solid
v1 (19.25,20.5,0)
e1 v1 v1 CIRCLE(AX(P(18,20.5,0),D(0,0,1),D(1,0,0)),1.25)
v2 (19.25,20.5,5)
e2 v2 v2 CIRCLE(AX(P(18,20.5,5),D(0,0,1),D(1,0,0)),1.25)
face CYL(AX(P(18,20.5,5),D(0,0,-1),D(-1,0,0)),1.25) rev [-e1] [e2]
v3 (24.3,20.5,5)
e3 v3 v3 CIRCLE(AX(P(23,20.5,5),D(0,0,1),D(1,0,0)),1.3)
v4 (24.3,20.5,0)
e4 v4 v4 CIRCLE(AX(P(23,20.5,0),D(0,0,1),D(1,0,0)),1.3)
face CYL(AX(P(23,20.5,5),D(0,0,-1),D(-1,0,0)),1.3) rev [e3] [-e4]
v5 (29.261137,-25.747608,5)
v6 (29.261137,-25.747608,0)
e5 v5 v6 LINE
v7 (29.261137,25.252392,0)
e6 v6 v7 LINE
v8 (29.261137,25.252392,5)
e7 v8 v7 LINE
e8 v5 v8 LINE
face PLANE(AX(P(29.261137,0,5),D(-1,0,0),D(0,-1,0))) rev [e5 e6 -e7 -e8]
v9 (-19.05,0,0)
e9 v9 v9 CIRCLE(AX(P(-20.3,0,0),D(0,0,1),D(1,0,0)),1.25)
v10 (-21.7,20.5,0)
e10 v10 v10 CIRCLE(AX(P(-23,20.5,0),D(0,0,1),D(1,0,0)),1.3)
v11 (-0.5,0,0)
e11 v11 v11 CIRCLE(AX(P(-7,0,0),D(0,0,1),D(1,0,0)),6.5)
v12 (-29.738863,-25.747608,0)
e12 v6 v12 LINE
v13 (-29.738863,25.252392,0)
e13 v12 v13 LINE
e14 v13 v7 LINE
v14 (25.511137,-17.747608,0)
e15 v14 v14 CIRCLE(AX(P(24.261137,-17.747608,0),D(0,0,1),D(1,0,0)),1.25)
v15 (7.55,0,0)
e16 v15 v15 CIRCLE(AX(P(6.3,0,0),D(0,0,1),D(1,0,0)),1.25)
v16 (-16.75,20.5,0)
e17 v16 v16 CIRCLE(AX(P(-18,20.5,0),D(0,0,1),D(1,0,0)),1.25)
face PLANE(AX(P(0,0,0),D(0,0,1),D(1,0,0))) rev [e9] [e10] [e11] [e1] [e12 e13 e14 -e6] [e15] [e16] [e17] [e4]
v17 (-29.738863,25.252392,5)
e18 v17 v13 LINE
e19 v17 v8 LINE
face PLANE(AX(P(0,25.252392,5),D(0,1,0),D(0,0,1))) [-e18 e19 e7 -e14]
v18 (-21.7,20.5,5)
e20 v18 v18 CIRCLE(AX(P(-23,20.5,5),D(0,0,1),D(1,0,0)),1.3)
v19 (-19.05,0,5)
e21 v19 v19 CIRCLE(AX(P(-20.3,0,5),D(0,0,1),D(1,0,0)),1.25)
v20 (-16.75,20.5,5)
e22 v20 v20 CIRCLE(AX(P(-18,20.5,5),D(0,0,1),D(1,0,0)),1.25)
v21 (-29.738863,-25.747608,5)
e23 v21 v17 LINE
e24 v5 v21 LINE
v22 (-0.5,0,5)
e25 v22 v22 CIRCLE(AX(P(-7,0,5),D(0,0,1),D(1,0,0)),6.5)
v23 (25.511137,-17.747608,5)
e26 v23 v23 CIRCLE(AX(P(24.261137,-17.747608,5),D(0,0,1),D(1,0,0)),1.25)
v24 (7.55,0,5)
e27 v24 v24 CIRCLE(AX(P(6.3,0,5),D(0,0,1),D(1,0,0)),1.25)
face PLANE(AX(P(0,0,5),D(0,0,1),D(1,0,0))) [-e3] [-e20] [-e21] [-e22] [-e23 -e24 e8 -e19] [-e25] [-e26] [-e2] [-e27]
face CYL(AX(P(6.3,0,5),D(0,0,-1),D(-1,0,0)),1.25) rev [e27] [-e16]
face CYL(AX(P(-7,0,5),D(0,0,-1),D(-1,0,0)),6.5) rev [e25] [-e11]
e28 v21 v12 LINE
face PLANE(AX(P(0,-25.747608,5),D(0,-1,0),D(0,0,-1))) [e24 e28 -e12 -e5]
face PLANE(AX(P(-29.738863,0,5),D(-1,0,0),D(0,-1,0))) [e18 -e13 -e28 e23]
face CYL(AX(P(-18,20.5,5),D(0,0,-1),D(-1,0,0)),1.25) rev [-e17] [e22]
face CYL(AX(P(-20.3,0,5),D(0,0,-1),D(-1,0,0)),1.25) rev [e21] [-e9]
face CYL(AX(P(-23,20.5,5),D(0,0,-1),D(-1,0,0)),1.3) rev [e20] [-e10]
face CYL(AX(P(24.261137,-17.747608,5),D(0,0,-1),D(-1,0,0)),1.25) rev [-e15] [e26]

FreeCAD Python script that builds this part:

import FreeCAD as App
import Part
import Sketcher
Q = App.Units.Quantity


def add_polygon(sketch, points):
    """Adds a closed chain of lines whose ends are joined by coincident constraints."""
    first, n = sketch.GeometryCount, len(points)
    for a, b in zip(points, points[1:] + points[:1]):
        sketch.addGeometry(Part.LineSegment(App.Vector(*a, 0), App.Vector(*b, 0)), False)
    for i in range(n):
        sketch.addConstraint(Sketcher.Constraint("Coincident", first + i, 2, first + (i + 1) % n, 1))

doc = App.newDocument("Part")
params = doc.addObject("Spreadsheet::Sheet", "Params")
for row, (alias, value) in enumerate([
    ("sketch1_diameter", "13 mm"),
    ("sketch1_diameter2", "2.5 mm"),
    ("sketch1_diameter3", "2.6 mm"),
    ("sketch1_width", "59 mm"),
    ("sketch1_height", "51 mm"),
    ("pad1_length", "5 mm"),
], start=1):
    params.set(f"A{row}", alias)
    params.set(f"B{row}", "=" + value)
    params.setAlias(f"B{row}", alias)

body = doc.addObject("PartDesign::Body", "Body")

# Sketch on XY plane
sketch1 = body.newObject("Sketcher::SketchObject", "Sketch")
sketch1.AttachmentSupport = (doc.getObject("XY_Plane"), [""])
sketch1.MapMode = "FlatFace"
add_polygon(sketch1, [(-29.7, 25.3), (-29.7, -25.7), (29.3, -25.7), (29.3, 25.3)])  # lines 0-3
sketch1.addGeometry(Part.Circle(App.Vector(-20.3, 0, 0), App.Vector(0, 0, 1), 1.2), False)  # 4
sketch1.addGeometry(Part.Circle(App.Vector(-7, 0, 0), App.Vector(0, 0, 1), 6.5), False)  # 5
sketch1.addGeometry(Part.Circle(App.Vector(24.3, -17.7, 0), App.Vector(0, 0, 1), 1.2), False)  # 6
sketch1.addGeometry(Part.Circle(App.Vector(6.3, 0, 0), App.Vector(0, 0, 1), 1.2), False)  # 7
sketch1.addGeometry(Part.Circle(App.Vector(-23, 20.5, 0), App.Vector(0, 0, 1), 1.3), False)  # 8
sketch1.addGeometry(Part.Circle(App.Vector(-18, 20.5, 0), App.Vector(0, 0, 1), 1.2), False)  # 9
sketch1.addGeometry(Part.Circle(App.Vector(18, 20.5, 0), App.Vector(0, 0, 1), 1.2), False)  # 10
sketch1.addGeometry(Part.Circle(App.Vector(23, 20.5, 0), App.Vector(0, 0, 1), 1.3), False)  # 11
sketch1.addConstraint([
    Sketcher.Constraint("Vertical", 0),
    Sketcher.Constraint("Horizontal", 1),
    Sketcher.Constraint("Vertical", 2),
    Sketcher.Constraint("Horizontal", 3),
    Sketcher.Constraint("Equal", 4, 6),
    Sketcher.Constraint("Equal", 6, 7),
    Sketcher.Constraint("Equal", 7, 9),
    Sketcher.Constraint("Equal", 9, 10),
    Sketcher.Constraint("Equal", 8, 11),
    Sketcher.Constraint("Symmetric", 9, 3, 10, 3, -2),
    Sketcher.Constraint("Symmetric", 8, 3, 11, 3, -2),
    Sketcher.Constraint("PointOnObject", 4, 3, -1),
    Sketcher.Constraint("PointOnObject", 5, 3, -1),
    Sketcher.Constraint("PointOnObject", 7, 3, -1),
    Sketcher.Constraint("Horizontal", 8, 3, 9, 3),
    Sketcher.Constraint("Diameter", 5, Q("13 mm")),
    Sketcher.Constraint("Diameter", 4, Q("2.5 mm")),
    Sketcher.Constraint("Diameter", 8, Q("2.6 mm")),
    Sketcher.Constraint("DistanceX", 1, 1, 1, 2, Q("59 mm")),
    Sketcher.Constraint("DistanceY", 0, 2, 0, 1, Q("51 mm")),
    Sketcher.Constraint("DistanceX", 5, 3, -1, 1, Q("7 mm")),
    Sketcher.Constraint("DistanceX", 8, 3, -1, 1, Q("23 mm")),
    Sketcher.Constraint("DistanceX", 9, 3, -1, 1, Q("18 mm")),
    Sketcher.Constraint("DistanceX", 6, 3, 1, 2, Q("5 mm")),
    Sketcher.Constraint("DistanceY", 1, 2, 6, 3, Q("8 mm")),
    Sketcher.Constraint("DistanceX", 4, 3, -1, 1, Q("20.3 mm")),
    Sketcher.Constraint("DistanceX", -1, 1, 7, 3, Q("6.3 mm")),
    Sketcher.Constraint("DistanceY", -1, 1, 8, 3, Q("20.5 mm")),
    Sketcher.Constraint("DistanceX", -1, 1, 6, 3, Q("24.261137 mm")),
    Sketcher.Constraint("DistanceY", 6, 3, -1, 1, Q("17.747608 mm")),
])
sketch1.setExpression("Constraints[19]", "Params.sketch1_diameter")
sketch1.setExpression("Constraints[20]", "Params.sketch1_diameter2")
sketch1.setExpression("Constraints[21]", "Params.sketch1_diameter3")
sketch1.setExpression("Constraints[22]", "Params.sketch1_width")
sketch1.setExpression("Constraints[23]", "Params.sketch1_height")
pad1 = body.newObject("PartDesign::Pad", "Pad")
pad1.Profile = sketch1
pad1.setExpression("Length", "Params.pad1_length")

doc.recompute()
